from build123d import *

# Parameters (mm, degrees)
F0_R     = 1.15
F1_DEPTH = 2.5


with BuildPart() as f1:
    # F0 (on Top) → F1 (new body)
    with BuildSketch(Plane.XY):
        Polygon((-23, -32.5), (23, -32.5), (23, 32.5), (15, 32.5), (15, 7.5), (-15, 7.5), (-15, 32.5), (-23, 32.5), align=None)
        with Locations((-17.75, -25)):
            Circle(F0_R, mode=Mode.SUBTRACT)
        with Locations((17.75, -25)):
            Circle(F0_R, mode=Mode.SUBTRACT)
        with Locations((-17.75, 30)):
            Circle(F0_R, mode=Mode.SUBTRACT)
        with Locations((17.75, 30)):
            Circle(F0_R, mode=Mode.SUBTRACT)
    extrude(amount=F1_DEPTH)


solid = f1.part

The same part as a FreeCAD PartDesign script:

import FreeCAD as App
import Part
import Sketcher
from FreeCAD import Vector


def add_polygon(sketch, points):
    """Adds a closed chain of lines whose ends are joined by coincident constraints."""
    first, n = sketch.GeometryCount, len(points)
    for a, b in zip(points, points[1:] + points[:1]):
        sketch.addGeometry(Part.LineSegment(App.Vector(*a, 0), App.Vector(*b, 0)), False)
    for i in range(n):
        sketch.addConstraint(Sketcher.Constraint("Coincident", first + i, 2, first + (i + 1) % n, 1))

doc = App.newDocument("Part")
body = doc.addObject("PartDesign::Body", "Body")

# Sketch on XY plane
sketch1 = body.newObject("Sketcher::SketchObject", "Sketch")
sketch1.AttachmentSupport = (doc.getObject("XY_Plane"), [""])
sketch1.MapMode = "FlatFace"
add_polygon(sketch1, [(-23, -32.5), (23, -32.5), (23, 32.5), (15, 32.5), (15, 7.5), (-15, 7.5), (-15, 32.5), (-23, 32.5)])  # lines 0-7
sketch1.addGeometry(Part.Circle(Vector(-17.75, -25, 0), Vector(0, 0, 1), 1.15), False)  # 8
sketch1.addGeometry(Part.Circle(Vector(17.75, -25, 0), Vector(0, 0, 1), 1.15), False)  # 9
sketch1.addGeometry(Part.Circle(Vector(-17.75, 30, 0), Vector(0, 0, 1), 1.15), False)  # 10
sketch1.addGeometry(Part.Circle(Vector(17.75, 30, 0), Vector(0, 0, 1), 1.15), False)  # 11
sketch1.addConstraint([
    Sketcher.Constraint("Horizontal", 0),
    Sketcher.Constraint("Vertical", 1),
    Sketcher.Constraint("Horizontal", 2),
    Sketcher.Constraint("Vertical", 3),
    Sketcher.Constraint("Horizontal", 4),
    Sketcher.Constraint("Vertical", 5),
    Sketcher.Constraint("Horizontal", 6),
    Sketcher.Constraint("Vertical", 7),
    Sketcher.Constraint("Equal", 8, 9),
    Sketcher.Constraint("Equal", 9, 10),
    Sketcher.Constraint("Equal", 10, 11),
    Sketcher.Constraint("Symmetric", 0, 2, 6, 2, -1, 1),
    Sketcher.Constraint("Symmetric", 8, 3, 9, 3, -2),
    Sketcher.Constraint("Symmetric", 10, 3, 11, 3, -2),
    Sketcher.Constraint("Symmetric", 2, 2, 5, 2, -2),
    Sketcher.Constraint("Vertical", 8, 3, 10, 3),
    Sketcher.Constraint("Diameter", 8, 2.3),
    Sketcher.Constraint("DistanceX", 0, 1, 0, 2, 46.0),
    Sketcher.Constraint("DistanceX", 2, 2, 2, 1, 8.0),
    Sketcher.Constraint("DistanceY", 1, 1, 1, 2, 65.0),
    Sketcher.Constraint("DistanceY", 3, 2, 3, 1, 25.0),
    Sketcher.Constraint("DistanceY", 8, 3, -1, 1, 25.0),
    Sketcher.Constraint("DistanceY", -1, 1, 10, 3, 30.0),
    Sketcher.Constraint("DistanceX", 8, 3, 9, 3, 35.5),
])
pad1 = body.newObject("PartDesign::Pad", "Pad")
pad1.Profile = sketch1
pad1.Length = 2.5

doc.recompute()
